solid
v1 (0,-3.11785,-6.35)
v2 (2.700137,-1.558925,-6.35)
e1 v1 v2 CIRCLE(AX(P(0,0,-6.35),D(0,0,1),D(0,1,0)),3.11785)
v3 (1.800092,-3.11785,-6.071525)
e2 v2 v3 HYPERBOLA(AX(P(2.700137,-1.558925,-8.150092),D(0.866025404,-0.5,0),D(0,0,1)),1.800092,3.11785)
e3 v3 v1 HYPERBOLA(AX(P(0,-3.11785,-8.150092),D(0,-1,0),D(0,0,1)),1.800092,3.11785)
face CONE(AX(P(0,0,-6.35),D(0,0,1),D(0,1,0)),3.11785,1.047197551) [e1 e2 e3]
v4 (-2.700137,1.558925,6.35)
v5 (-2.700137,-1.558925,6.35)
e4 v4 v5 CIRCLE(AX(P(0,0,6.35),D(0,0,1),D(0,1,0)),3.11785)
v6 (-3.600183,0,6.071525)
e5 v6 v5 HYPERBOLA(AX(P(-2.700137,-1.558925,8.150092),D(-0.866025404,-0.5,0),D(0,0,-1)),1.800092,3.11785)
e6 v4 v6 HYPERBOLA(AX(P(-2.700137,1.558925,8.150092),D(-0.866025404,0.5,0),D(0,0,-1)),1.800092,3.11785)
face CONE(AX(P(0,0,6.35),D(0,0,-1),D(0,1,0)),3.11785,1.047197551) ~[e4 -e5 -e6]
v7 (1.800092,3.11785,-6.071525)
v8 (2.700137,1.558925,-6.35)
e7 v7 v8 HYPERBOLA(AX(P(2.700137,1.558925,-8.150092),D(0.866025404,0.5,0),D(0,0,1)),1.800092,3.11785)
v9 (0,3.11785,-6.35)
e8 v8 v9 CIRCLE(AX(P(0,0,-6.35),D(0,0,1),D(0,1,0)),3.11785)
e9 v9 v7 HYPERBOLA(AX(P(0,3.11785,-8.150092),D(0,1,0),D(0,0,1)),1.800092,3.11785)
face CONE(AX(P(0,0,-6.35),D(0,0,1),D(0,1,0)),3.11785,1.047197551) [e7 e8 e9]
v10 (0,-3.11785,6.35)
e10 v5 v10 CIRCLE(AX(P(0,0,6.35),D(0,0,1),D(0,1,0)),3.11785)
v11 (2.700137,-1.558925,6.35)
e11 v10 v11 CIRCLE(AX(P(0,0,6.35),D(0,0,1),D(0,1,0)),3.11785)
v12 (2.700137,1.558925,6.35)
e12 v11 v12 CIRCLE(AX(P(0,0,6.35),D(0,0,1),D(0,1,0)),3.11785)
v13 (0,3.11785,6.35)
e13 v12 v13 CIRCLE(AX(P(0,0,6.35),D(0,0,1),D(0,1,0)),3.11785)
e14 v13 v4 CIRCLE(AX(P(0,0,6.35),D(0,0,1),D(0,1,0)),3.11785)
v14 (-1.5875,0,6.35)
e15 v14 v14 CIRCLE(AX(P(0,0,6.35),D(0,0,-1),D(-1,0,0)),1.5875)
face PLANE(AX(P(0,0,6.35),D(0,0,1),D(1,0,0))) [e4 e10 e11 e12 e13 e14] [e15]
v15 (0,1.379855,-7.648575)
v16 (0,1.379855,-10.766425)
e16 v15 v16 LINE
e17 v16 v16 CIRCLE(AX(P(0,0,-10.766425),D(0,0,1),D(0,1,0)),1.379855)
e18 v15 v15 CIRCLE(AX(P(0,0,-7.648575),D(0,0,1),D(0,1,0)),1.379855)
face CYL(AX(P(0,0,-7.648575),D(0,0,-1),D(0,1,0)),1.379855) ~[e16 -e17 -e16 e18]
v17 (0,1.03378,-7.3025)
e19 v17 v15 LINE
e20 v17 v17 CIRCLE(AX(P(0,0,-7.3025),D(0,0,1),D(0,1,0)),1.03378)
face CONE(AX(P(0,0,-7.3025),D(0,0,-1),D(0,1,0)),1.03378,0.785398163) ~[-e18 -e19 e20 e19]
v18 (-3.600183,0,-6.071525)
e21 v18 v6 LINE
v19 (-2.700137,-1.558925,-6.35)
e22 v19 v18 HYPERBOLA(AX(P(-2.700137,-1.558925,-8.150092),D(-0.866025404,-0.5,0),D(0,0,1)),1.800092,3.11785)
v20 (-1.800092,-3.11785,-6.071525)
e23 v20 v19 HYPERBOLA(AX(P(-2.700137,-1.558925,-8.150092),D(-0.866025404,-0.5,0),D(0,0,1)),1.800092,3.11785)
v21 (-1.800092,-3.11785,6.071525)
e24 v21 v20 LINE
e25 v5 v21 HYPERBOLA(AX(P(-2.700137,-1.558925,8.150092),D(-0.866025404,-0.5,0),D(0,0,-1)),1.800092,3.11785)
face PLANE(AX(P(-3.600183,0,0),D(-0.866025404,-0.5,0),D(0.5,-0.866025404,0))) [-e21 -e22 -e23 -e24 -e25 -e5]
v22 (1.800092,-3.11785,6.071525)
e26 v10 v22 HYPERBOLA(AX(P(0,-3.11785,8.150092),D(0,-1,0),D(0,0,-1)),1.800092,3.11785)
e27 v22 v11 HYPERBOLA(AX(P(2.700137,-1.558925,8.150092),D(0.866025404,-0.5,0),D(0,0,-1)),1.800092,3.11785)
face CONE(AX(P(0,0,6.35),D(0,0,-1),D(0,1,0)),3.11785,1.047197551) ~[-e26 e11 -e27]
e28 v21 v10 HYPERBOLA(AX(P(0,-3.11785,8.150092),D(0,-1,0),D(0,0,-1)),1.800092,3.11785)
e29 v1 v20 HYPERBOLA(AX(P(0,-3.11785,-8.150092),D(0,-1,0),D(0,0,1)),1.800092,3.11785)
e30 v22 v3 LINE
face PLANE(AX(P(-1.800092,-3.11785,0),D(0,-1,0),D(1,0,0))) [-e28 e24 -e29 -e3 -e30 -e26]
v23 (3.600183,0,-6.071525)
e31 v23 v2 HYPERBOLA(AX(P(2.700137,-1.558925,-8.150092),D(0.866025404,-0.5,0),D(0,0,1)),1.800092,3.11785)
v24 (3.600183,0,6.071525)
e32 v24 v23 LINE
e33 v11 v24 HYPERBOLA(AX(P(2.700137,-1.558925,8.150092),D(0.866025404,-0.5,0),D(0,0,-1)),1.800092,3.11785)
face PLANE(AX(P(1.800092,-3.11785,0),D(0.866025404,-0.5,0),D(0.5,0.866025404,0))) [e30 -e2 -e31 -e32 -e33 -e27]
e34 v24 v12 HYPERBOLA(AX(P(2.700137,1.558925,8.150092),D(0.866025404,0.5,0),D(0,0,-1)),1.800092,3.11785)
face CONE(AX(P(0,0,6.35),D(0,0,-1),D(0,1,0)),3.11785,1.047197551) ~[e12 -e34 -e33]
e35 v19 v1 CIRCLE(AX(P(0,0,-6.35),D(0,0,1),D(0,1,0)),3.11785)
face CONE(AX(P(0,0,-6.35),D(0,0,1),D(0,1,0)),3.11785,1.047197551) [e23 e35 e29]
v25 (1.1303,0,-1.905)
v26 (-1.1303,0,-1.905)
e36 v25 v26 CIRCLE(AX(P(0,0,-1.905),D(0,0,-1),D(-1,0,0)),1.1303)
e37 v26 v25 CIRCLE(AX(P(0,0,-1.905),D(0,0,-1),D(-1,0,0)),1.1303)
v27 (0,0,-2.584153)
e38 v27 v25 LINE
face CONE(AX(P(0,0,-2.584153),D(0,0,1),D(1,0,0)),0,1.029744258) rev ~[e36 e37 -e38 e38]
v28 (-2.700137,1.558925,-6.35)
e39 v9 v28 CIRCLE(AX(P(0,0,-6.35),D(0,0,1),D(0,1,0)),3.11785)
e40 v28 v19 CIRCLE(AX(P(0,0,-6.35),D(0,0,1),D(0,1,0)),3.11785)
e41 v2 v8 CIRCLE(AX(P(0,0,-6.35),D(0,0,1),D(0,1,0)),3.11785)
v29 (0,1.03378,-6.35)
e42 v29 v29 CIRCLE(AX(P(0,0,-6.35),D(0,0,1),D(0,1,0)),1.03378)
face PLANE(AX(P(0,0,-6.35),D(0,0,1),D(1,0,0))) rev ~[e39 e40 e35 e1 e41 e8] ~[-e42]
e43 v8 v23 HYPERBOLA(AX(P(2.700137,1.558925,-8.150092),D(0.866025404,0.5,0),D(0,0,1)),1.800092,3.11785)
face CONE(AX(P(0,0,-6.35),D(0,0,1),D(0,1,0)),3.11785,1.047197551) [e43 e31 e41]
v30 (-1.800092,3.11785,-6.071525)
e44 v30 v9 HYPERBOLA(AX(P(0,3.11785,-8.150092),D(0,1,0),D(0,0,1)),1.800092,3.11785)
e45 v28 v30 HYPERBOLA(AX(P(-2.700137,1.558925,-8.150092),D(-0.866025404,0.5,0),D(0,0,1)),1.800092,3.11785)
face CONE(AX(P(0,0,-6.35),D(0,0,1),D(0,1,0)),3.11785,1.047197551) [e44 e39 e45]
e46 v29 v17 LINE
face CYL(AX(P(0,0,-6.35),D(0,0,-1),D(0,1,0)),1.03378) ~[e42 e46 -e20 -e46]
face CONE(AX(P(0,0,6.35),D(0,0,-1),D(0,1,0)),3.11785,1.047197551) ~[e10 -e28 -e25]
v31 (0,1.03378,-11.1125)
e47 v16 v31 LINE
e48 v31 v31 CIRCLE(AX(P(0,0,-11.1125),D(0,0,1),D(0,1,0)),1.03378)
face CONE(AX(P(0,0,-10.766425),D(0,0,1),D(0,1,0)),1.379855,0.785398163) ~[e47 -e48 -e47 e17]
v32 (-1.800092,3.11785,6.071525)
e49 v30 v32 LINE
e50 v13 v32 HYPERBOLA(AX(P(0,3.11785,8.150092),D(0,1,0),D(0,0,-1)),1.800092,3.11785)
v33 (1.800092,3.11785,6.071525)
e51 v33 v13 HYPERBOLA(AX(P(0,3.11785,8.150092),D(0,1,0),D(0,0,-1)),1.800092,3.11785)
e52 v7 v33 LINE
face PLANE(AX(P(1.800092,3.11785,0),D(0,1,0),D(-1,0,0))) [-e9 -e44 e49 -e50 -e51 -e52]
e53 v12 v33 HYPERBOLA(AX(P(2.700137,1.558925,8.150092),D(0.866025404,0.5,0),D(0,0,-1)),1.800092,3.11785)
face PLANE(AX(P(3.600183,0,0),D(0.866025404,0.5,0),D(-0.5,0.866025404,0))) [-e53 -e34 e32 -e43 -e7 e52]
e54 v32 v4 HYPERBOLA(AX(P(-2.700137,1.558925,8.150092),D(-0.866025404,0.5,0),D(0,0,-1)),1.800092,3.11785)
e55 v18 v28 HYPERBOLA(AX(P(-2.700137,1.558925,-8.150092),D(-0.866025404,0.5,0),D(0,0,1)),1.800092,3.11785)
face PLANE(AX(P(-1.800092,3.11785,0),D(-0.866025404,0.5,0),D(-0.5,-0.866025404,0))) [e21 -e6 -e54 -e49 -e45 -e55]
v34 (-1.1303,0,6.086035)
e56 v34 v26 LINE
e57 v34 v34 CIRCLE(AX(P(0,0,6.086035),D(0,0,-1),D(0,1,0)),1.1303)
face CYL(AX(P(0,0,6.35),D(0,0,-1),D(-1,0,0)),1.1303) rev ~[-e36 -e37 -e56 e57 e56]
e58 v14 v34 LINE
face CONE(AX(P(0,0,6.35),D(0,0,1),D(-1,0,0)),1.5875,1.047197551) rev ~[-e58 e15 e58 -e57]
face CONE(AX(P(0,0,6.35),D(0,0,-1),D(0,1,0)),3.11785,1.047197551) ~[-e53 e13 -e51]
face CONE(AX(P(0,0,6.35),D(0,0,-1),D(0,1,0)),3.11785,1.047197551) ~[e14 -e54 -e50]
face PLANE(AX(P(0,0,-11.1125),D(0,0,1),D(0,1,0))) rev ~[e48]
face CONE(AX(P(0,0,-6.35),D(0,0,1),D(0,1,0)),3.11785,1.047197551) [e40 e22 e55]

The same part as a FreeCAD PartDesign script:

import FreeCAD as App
import Part
import Sketcher
from FreeCAD import Vector
Q = App.Units.Quantity

doc = App.newDocument("Part")
body = doc.addObject("PartDesign::Body", "Body")

sketch1 = doc.addObject("Sketcher::SketchObject", "Sketch")
body.addObject(sketch1)
sketch1.AttachmentSupport = (doc.XY_Plane, [""])
sketch1.MapMode = "FlatFace"
sketch1.addGeometry([
    Part.LineSegment(Vector(3.6, 0, 0), Vector(1.8, 3.1, 0)),
    Part.LineSegment(Vector(1.8, 3.1, 0), Vector(-1.8, 3.1, 0)),
    Part.LineSegment(Vector(-1.8, 3.1, 0), Vector(-3.6, 0, 0)),
    Part.LineSegment(Vector(-3.6, 0, 0), Vector(-1.8, -3.1, 0)),
    Part.LineSegment(Vector(-1.8, -3.1, 0), Vector(1.8, -3.1, 0)),
    Part.LineSegment(Vector(1.8, -3.1, 0), Vector(3.6, 0, 0)),
], False)
sketch1.addConstraint([
    Sketcher.Constraint("Coincident", 0, 2, 1, 1),
    Sketcher.Constraint("Coincident", 1, 2, 2, 1),
    Sketcher.Constraint("Coincident", 2, 2, 3, 1),
    Sketcher.Constraint("Coincident", 3, 2, 4, 1),
    Sketcher.Constraint("Coincident", 4, 2, 5, 1),
    Sketcher.Constraint("Coincident", 5, 2, 0, 1),
    Sketcher.Constraint("Horizontal", 1),
    Sketcher.Constraint("Horizontal", 4),
    Sketcher.Constraint("Symmetric", 0, 2, 3, 2, -1, 1),
    Sketcher.Constraint("Symmetric", 2, 2, 5, 2, -1, 1),
    Sketcher.Constraint("PointOnObject", 2, 2, -1),
    Sketcher.Constraint("Parallel", 2, 5),
    Sketcher.Constraint("Vertical", 1, 2, 3, 2),
    Sketcher.Constraint("Angle", 0, Q("120 deg")),
    Sketcher.Constraint("DistanceY", 3, 2, 1, 2, Q("0.2455 in")),
    Sketcher.Constraint("DistanceX", 1, 2, 1, 1, 3.600183),
])
pad1 = doc.addObject("PartDesign::Pad", "Pad")
body.addObject(pad1)
pad1.Profile = sketch1
pad1.Length = Q("0.5 in")
pad1.Midplane = True

sketch2 = doc.addObject("Sketcher::SketchObject", "Sketch001")
body.addObject(sketch2)
sketch2.AttachmentSupport = (doc.YZ_Plane, [""])
sketch2.MapMode = "FlatFace"
sketch2.addGeometry([
    Part.LineSegment(Vector(3.12, 6.35, 0), Vector(4.64, 5.47, 0)),
    Part.LineSegment(Vector(4.64, 5.47, 0), Vector(4.64, 6.6, 0)),
    Part.LineSegment(Vector(4.64, 6.6, 0), Vector(3.12, 6.6, 0)),
    Part.LineSegment(Vector(3.12, 6.6, 0), Vector(3.12, 6.35, 0)),
], False)
sketch2.addConstraint([
    Sketcher.Constraint("Coincident", 0, 2, 1, 1),
    Sketcher.Constraint("Coincident", 1, 2, 2, 1),
    Sketcher.Constraint("Coincident", 2, 2, 3, 1),
    Sketcher.Constraint("Coincident", 3, 2, 0, 1),
    Sketcher.Constraint("Vertical", 1),
    Sketcher.Constraint("Horizontal", 2),
    Sketcher.Constraint("Vertical", 3),
    Sketcher.Constraint("Angle", 0, Q("-30 deg")),
    Sketcher.Constraint("DistanceX", 2, 2, 2, 1, Q("0.06 in")),
    Sketcher.Constraint("DistanceY", 3, 2, 3, 1, Q("0.01 in")),
    Sketcher.Constraint("DistanceY", -1, 1, 1, 2, Q("0.26 in")),
    Sketcher.Constraint("DistanceX", -1, 1, 0, 2, 4.64185),
])
groove = doc.addObject("PartDesign::Groove", "Groove")
body.addObject(groove)
groove.Profile = sketch2
groove.ReferenceAxis = (sketch2, ["V_Axis"])
groove.Angle = 360
doc.recompute()

mirrored = doc.addObject("PartDesign::Mirrored", "Mirrored")
body.addObject(mirrored)
mirrored.Originals = [groove]
mirrored.MirrorPlane = (doc.XY_Plane, [""])
body.Tip = mirrored

sketch3 = doc.addObject("Sketcher::SketchObject", "Sketch002")
body.addObject(sketch3)
sketch3.AttachmentSupport = (doc.YZ_Plane, [""])
sketch3.MapMode = "FlatFace"
sketch3.addGeometry([
    Part.LineSegment(Vector(1.03, -7.3, 0), Vector(1.03, -6.35, 0)),
    Part.LineSegment(Vector(1.03, -6.35, 0), Vector(0, -6.35, 0)),
    Part.LineSegment(Vector(0, -6.35, 0), Vector(0, -11.11, 0)),
    Part.LineSegment(Vector(0, -11.11, 0), Vector(1.03, -11.11, 0)),
    Part.LineSegment(Vector(1.03, -11.11, 0), Vector(1.38, -10.77, 0)),
    Part.LineSegment(Vector(1.38, -10.77, 0), Vector(1.38, -7.65, 0)),
    Part.LineSegment(Vector(1.38, -7.65, 0), Vector(1.03, -7.3, 0)),
], False)
sketch3.addConstraint([
    Sketcher.Constraint("Coincident", 0, 2, 1, 1),
    Sketcher.Constraint("Coincident", 1, 2, 2, 1),
    Sketcher.Constraint("Coincident", 2, 2, 3, 1),
    Sketcher.Constraint("Coincident", 3, 2, 4, 1),
    Sketcher.Constraint("Coincident", 4, 2, 5, 1),
    Sketcher.Constraint("Coincident", 5, 2, 6, 1),
    Sketcher.Constraint("Coincident", 6, 2, 0, 1),
    Sketcher.Constraint("Vertical", 0),
    Sketcher.Constraint("Horizontal", 1),
    Sketcher.Constraint("Vertical", 2),
    Sketcher.Constraint("Horizontal", 3),
    Sketcher.Constraint("Vertical", 5),
    Sketcher.Constraint("PointOnObject", 1, 2, -2),
    Sketcher.Constraint("Perpendicular", 4, 6),
    Sketcher.Constraint("Vertical", 0, 2, 3, 2),
    Sketcher.Constraint("Equal", 4, 6),
    Sketcher.Constraint("DistanceY", 2, 2, 2, 1, Q("0.1875 in")),
    Sketcher.Constraint("DistanceY", 0, 2, -1, 1, Q("0.25 in")),
    Sketcher.Constraint("DistanceY", 3, 2, 6, 2, Q("0.15 in")),
    Sketcher.Constraint("DistanceX", 1, 2, 1, 1, Q("0.0407 in")),
    Sketcher.Constraint("DistanceY", 5, 1, 5, 2, 3.11785),
])
revolution = doc.addObject("PartDesign::Revolution", "Revolution")
body.addObject(revolution)
revolution.Profile = sketch3
revolution.ReferenceAxis = (sketch3, ["V_Axis"])
revolution.Angle = 360

sketch4 = doc.addObject("Sketcher::SketchObject", "Sketch003")
body.addObject(sketch4)
sketch4.AttachmentSupport = (doc.XY_Plane, [""])
sketch4.MapMode = "FlatFace"
sketch4.AttachmentOffset = App.Placement(Vector(0, 0, 0.25 * 25.4), App.Rotation())
sketch4.addGeometry(Part.Circle(Vector(0, 0, 0), Vector(0, 0, 1), 1.1), False)
sketch4.addConstraint([
    Sketcher.Constraint("Coincident", 0, 3, -1, 1),
    Sketcher.Constraint("Diameter", 0, Q("0.089 in")),
])
doc.recompute()
hole = doc.addObject("PartDesign::Hole", "Hole")
body.addObject(hole)
hole.Profile = sketch4
hole.ThreadType = "None"
hole.Diameter = Q("0.089 in")
hole.DepthType = "Dimension"
hole.Depth = Q("0.325 in")
hole.DrillPoint = "Angled"
hole.DrillPointAngle = 118
hole.HoleCutType = "Countersink"
hole.HoleCutDiameter = Q("0.125 in")
hole.HoleCutCountersinkAngle = 120

doc.recompute()
